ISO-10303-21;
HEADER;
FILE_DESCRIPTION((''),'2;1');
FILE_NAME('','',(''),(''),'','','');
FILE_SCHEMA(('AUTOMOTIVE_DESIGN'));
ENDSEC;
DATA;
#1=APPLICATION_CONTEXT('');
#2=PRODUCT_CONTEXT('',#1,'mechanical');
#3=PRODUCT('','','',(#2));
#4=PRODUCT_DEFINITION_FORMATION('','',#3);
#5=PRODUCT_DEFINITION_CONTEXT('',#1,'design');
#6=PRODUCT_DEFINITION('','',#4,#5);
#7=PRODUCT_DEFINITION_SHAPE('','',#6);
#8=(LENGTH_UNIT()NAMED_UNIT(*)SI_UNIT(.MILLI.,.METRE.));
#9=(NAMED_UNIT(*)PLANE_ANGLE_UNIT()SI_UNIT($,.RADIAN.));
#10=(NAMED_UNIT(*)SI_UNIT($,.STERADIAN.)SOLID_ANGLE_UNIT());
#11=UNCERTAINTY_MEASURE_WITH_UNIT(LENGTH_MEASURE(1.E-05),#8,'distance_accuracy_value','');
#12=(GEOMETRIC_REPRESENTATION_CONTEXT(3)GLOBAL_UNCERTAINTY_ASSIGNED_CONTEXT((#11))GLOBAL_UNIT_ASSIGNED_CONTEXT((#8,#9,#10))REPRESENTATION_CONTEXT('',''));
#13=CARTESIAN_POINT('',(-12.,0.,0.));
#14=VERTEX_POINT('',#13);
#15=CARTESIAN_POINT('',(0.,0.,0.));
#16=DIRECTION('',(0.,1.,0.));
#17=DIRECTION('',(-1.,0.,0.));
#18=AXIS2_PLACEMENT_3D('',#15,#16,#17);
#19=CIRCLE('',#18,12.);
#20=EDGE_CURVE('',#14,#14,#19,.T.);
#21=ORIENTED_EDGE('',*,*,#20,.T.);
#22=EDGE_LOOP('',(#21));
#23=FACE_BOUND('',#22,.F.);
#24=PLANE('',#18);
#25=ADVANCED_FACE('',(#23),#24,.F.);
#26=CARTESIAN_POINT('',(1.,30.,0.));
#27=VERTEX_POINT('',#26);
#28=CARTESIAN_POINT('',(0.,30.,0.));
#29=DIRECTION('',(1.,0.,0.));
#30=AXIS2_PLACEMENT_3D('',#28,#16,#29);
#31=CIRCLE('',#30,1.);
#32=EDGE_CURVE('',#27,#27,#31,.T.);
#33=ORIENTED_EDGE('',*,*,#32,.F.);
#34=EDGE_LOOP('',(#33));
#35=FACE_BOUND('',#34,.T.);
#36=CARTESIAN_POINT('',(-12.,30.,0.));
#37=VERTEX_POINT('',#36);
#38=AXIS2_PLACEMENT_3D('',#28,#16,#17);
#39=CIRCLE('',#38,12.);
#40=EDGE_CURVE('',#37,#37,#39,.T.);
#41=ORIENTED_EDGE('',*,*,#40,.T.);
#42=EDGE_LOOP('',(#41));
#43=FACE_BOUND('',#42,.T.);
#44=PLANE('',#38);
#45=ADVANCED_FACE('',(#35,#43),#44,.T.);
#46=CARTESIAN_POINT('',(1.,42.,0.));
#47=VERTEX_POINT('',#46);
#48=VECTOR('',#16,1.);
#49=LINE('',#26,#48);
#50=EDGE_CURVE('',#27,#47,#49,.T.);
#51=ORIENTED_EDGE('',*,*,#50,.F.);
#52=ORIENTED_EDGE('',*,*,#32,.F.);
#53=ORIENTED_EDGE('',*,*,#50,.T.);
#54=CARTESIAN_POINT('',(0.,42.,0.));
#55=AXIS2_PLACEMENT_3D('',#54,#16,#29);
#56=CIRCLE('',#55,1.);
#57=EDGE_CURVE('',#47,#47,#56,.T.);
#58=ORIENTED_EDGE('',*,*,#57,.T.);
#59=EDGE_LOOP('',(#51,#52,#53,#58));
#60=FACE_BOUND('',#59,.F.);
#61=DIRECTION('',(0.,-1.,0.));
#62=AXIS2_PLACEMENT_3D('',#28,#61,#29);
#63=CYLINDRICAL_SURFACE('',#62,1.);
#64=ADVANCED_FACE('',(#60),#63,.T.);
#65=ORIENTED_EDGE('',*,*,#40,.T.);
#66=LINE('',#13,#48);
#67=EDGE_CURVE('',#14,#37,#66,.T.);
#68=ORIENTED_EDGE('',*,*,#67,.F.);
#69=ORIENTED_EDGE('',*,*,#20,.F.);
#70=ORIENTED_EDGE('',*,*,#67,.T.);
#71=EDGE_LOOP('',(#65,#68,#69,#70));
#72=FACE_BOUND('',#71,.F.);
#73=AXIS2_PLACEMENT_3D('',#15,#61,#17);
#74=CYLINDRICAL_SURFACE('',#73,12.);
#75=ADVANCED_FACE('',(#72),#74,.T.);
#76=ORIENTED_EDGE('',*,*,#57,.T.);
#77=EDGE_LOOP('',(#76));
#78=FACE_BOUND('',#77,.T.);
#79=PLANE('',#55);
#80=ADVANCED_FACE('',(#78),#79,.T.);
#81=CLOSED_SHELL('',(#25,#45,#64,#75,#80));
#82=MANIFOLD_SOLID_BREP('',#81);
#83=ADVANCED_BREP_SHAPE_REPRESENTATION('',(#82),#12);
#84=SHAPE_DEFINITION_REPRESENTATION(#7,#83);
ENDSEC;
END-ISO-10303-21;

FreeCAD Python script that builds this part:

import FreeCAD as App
import Part
import Sketcher

V = App.Vector
Q = App.Units.Quantity

doc = App.newDocument("Part")
params = doc.addObject("Spreadsheet::Sheet", "Params")
for row, (alias, value) in enumerate([
    ("sketch1_diameter", "24 mm"),
    ("pad1_length", "30 mm"),
    ("sketch2_diameter", "2 mm"),
    ("pad2_length", "12 mm"),
], start=1):
    params.set(f"A{row}", alias)
    params.set(f"B{row}", "=" + value)
    params.setAlias(f"B{row}", alias)

body = doc.addObject("PartDesign::Body", "Body")

# Sketch on XZ plane
sketch1 = body.newObject("Sketcher::SketchObject", "Sketch")
sketch1.AttachmentSupport = (doc.getObject("XZ_Plane"), [""])
sketch1.MapMode = "FlatFace"
sketch1.addGeometry(Part.Circle(V(0, 0, 0), V(0, 0, 1), 12), False)
sketch1.addConstraint(Sketcher.Constraint("Coincident", 0, 3, -1, 1))
sketch1.addConstraint(Sketcher.Constraint("Diameter", 0, Q("24 mm")))
sketch1.setExpression("Constraints[1]", "Params.sketch1_diameter")
pad1 = body.newObject("PartDesign::Pad", "Pad")
pad1.Profile = sketch1
pad1.setExpression("Length", "Params.pad1_length")
pad1.Reversed = True

# Sketch on XZ plane
sketch2 = body.newObject("Sketcher::SketchObject", "Sketch001")
sketch2.AttachmentSupport = (doc.getObject("XZ_Plane"), [""])
sketch2.MapMode = "FlatFace"
sketch2.AttachmentOffset = App.Placement(V(0, 0, -30), App.Rotation())
sketch2.addGeometry(Part.Circle(V(0, 0, 0), V(0, 0, 1), 1), False)
sketch2.addConstraint(Sketcher.Constraint("Coincident", 0, 3, -1, 1))
sketch2.addConstraint(Sketcher.Constraint("Diameter", 0, Q("2 mm")))
sketch2.setExpression("Constraints[1]", "Params.sketch2_diameter")
pad2 = body.newObject("PartDesign::Pad", "Pad001")
pad2.Profile = sketch2
pad2.setExpression("Length", "Params.pad2_length")
pad2.Reversed = True

doc.recompute()
